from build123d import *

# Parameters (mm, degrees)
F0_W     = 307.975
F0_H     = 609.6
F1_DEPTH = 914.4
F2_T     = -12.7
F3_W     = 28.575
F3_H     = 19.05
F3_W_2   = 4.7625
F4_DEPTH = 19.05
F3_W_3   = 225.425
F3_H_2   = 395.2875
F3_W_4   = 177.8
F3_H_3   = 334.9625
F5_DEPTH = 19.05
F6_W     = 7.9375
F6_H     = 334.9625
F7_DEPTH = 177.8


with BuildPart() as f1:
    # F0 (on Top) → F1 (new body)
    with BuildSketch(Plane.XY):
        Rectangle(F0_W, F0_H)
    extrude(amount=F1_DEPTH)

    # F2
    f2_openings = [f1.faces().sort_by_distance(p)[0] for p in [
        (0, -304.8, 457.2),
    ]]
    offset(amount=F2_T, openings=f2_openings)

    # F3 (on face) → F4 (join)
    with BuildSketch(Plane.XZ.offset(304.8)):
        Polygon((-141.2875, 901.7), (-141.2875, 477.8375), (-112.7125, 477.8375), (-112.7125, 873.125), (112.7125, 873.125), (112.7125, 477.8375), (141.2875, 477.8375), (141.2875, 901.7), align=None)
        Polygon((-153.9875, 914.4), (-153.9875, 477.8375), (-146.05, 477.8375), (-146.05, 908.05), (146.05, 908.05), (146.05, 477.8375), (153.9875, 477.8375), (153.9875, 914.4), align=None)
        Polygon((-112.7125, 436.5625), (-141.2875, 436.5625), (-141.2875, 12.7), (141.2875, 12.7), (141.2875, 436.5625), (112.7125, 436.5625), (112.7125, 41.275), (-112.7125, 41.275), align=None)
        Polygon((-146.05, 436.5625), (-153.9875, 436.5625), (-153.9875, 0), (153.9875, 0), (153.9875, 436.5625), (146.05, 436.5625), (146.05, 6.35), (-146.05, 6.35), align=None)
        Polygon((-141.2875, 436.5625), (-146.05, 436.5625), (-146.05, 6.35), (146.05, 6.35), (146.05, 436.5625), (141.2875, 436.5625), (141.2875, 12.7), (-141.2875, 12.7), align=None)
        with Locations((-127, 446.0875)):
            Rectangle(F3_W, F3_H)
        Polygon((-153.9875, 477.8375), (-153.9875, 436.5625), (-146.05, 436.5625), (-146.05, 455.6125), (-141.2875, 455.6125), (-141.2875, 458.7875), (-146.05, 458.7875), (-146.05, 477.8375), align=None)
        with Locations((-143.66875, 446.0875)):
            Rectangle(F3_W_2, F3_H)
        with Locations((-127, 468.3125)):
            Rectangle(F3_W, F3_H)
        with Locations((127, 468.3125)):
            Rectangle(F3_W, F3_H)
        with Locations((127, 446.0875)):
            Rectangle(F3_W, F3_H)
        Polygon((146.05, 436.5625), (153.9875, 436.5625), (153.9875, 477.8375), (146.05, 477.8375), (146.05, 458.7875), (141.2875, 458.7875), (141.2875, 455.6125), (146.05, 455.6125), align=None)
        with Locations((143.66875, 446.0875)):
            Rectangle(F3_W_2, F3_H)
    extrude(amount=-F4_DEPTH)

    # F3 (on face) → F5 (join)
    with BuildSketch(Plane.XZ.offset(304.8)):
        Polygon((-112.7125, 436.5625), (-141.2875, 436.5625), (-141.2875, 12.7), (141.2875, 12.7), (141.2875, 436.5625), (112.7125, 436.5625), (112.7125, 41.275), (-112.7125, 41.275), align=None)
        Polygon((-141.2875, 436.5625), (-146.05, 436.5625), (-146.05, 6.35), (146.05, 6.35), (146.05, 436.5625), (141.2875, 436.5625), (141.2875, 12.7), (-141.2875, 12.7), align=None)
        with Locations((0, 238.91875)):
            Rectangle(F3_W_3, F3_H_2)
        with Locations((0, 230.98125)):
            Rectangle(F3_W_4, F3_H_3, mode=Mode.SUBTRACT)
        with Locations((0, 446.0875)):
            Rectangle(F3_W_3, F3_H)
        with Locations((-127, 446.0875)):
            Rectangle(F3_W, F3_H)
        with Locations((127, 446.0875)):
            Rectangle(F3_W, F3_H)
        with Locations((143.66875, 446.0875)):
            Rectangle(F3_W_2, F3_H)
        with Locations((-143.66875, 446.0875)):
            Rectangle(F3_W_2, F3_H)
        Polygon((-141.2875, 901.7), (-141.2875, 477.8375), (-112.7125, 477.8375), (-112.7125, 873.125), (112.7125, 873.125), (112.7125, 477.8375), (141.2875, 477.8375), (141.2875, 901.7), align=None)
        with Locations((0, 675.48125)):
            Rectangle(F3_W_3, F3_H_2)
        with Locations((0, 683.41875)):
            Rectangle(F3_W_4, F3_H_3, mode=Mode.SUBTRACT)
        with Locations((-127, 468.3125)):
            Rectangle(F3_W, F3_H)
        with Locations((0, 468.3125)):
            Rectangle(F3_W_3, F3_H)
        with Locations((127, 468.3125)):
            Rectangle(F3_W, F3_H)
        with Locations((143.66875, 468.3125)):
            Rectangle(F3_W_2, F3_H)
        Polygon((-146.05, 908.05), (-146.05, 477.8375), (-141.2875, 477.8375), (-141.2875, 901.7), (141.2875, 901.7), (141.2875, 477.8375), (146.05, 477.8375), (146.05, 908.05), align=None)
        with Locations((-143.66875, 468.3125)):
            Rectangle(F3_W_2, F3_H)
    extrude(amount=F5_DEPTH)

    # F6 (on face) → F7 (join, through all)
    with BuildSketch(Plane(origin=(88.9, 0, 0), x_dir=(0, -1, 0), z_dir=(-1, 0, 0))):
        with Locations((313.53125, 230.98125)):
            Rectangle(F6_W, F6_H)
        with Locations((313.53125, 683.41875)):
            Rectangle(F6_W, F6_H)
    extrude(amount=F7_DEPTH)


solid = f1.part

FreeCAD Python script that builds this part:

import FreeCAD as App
import Part
import Sketcher
from FreeCAD import Vector
Q = App.Units.Quantity


def faces_at(feature, points):
    """Names of the faces that lie closest to the given points."""
    faces = feature.Shape.Faces
    near = lambda p: min(range(len(faces)), key=lambda i: faces[i].distToShape(Part.Vertex(*p))[0])
    return sorted({f"Face{near(p) + 1}" for p in points})

doc = App.newDocument("Part")
body = doc.addObject("PartDesign::Body", "Body")

# Sketch on XY plane
sketch1 = body.newObject("Sketcher::SketchObject", "Sketch")
sketch1.AttachmentSupport = (doc.getObject("XY_Plane"), [""])
sketch1.MapMode = "FlatFace"
sketch1.addGeometry([
    Part.LineSegment(Vector(-154, 305, 0), Vector(-154, -305, 0)),
    Part.LineSegment(Vector(-154, -305, 0), Vector(154, -305, 0)),
    Part.LineSegment(Vector(154, -305, 0), Vector(154, 305, 0)),
    Part.LineSegment(Vector(154, 305, 0), Vector(-154, 305, 0)),
], False)
sketch1.addConstraint([
    Sketcher.Constraint("Coincident", 0, 2, 1, 1),
    Sketcher.Constraint("Coincident", 1, 2, 2, 1),
    Sketcher.Constraint("Coincident", 2, 2, 3, 1),
    Sketcher.Constraint("Coincident", 3, 2, 0, 1),
    Sketcher.Constraint("Vertical", 0),
    Sketcher.Constraint("Horizontal", 1),
    Sketcher.Constraint("Vertical", 2),
    Sketcher.Constraint("Horizontal", 3),
    Sketcher.Constraint("Symmetric", 0, 2, 2, 2, -1, 1),
    Sketcher.Constraint("DistanceY", 0, 2, 0, 1, Q("24 in")),
    Sketcher.Constraint("DistanceX", 1, 1, 1, 2, Q("12.125 in")),
])
pad1 = body.newObject("PartDesign::Pad", "Pad")
pad1.Profile = sketch1
pad1.Length = Q("36 in")
doc.recompute()

thickness = body.newObject("PartDesign::Thickness", "Thickness")
thickness.Base = (pad1, faces_at(pad1, [(0, -304.8, 457.2)]))
thickness.Value = Q("0.5 in")
thickness.Reversed = True
thickness.Join = "Arc"

# Sketch on XZ plane
sketch2 = body.newObject("Sketcher::SketchObject", "Sketch001")
sketch2.AttachmentSupport = (doc.getObject("XZ_Plane"), [""])
sketch2.MapMode = "FlatFace"
sketch2.AttachmentOffset = App.Placement(Vector(0, 0, 12 * 25.4), App.Rotation())
sketch2.addGeometry([
    Part.LineSegment(Vector(-141.3, 901.7, 0), Vector(-141.3, 458.8, 0)),  # 0
    Part.LineSegment(Vector(-141.3, 458.8, 0), Vector(-112.7, 458.8, 0)),  # 1
    Part.LineSegment(Vector(-112.7, 458.8, 0), Vector(-112.7, 873.1, 0)),  # 2
    Part.LineSegment(Vector(-112.7, 873.1, 0), Vector(112.7, 873.1, 0)),  # 3
    Part.LineSegment(Vector(112.7, 873.1, 0), Vector(112.7, 458.8, 0)),  # 4
    Part.LineSegment(Vector(112.7, 458.8, 0), Vector(141.3, 458.8, 0)),  # 5
    Part.LineSegment(Vector(141.3, 458.8, 0), Vector(141.3, 901.7, 0)),  # 6
    Part.LineSegment(Vector(141.3, 901.7, 0), Vector(-141.3, 901.7, 0)),  # 7
    Part.LineSegment(Vector(154, 914.4, 0), Vector(-154, 914.4, 0)),  # 8
    Part.LineSegment(Vector(-154, 914.4, 0), Vector(-154, 0, 0)),  # 9
    Part.LineSegment(Vector(-154, 0, 0), Vector(154, 0, 0)),  # 10
    Part.LineSegment(Vector(154, 0, 0), Vector(154, 914.4, 0)),  # 11
    Part.LineSegment(Vector(141.3, 458.8, 0), Vector(141.3, 455.6, 0)),  # 12
    Part.LineSegment(Vector(141.3, 455.6, 0), Vector(112.7, 455.6, 0)),  # 13
    Part.LineSegment(Vector(112.7, 455.6, 0), Vector(112.7, 41.3, 0)),  # 14
    Part.LineSegment(Vector(112.7, 41.3, 0), Vector(-112.7, 41.3, 0)),  # 15
    Part.LineSegment(Vector(-112.7, 41.3, 0), Vector(-112.7, 455.6, 0)),  # 16
    Part.LineSegment(Vector(-112.7, 455.6, 0), Vector(-141.3, 455.6, 0)),  # 17
    Part.LineSegment(Vector(-141.3, 455.6, 0), Vector(-141.3, 458.8, 0)),  # 18
    Part.LineSegment(Vector(-141.3, 458.8, 0), Vector(-146.1, 458.8, 0)),  # 19
    Part.LineSegment(Vector(-146.1, 458.8, 0), Vector(-146.1, 908, 0)),  # 20
    Part.LineSegment(Vector(-146.1, 908, 0), Vector(146.1, 908, 0)),  # 21
    Part.LineSegment(Vector(146.1, 908, 0), Vector(146.1, 458.8, 0)),  # 22
    Part.LineSegment(Vector(146.1, 458.8, 0), Vector(141.3, 458.8, 0)),  # 23
], False)
sketch2.addConstraint([
    Sketcher.Constraint("Coincident", 0, 2, 1, 1),
    Sketcher.Constraint("Coincident", 1, 2, 2, 1),
    Sketcher.Constraint("Coincident", 2, 2, 3, 1),
    Sketcher.Constraint("Coincident", 3, 2, 4, 1),
    Sketcher.Constraint("Coincident", 4, 2, 5, 1),
    Sketcher.Constraint("Coincident", 5, 2, 6, 1),
    Sketcher.Constraint("Coincident", 6, 2, 7, 1),
    Sketcher.Constraint("Coincident", 7, 2, 0, 1),
    Sketcher.Constraint("Coincident", 8, 2, 9, 1),
    Sketcher.Constraint("Coincident", 9, 2, 10, 1),
    Sketcher.Constraint("Coincident", 10, 2, 11, 1),
    Sketcher.Constraint("Coincident", 11, 2, 8, 1),
    Sketcher.Constraint("Coincident", 12, 2, 13, 1),
    Sketcher.Constraint("Coincident", 13, 2, 14, 1),
    Sketcher.Constraint("Coincident", 14, 2, 15, 1),
    Sketcher.Constraint("Coincident", 15, 2, 16, 1),
    Sketcher.Constraint("Coincident", 16, 2, 17, 1),
    Sketcher.Constraint("Coincident", 17, 2, 18, 1),
    Sketcher.Constraint("Coincident", 18, 2, 19, 1),
    Sketcher.Constraint("Coincident", 19, 2, 20, 1),
    Sketcher.Constraint("Coincident", 20, 2, 21, 1),
    Sketcher.Constraint("Coincident", 21, 2, 22, 1),
    Sketcher.Constraint("Coincident", 22, 2, 23, 1),
    Sketcher.Constraint("Coincident", 23, 2, 12, 1),
    Sketcher.Constraint("Vertical", 0),
    Sketcher.Constraint("Horizontal", 1),
    Sketcher.Constraint("Vertical", 2),
    Sketcher.Constraint("Horizontal", 3),
    Sketcher.Constraint("Vertical", 4),
    Sketcher.Constraint("Horizontal", 5),
    Sketcher.Constraint("Vertical", 6),
    Sketcher.Constraint("Horizontal", 7),
    Sketcher.Constraint("Horizontal", 8),
    Sketcher.Constraint("Vertical", 9),
    Sketcher.Constraint("Horizontal", 10),
    Sketcher.Constraint("Vertical", 11),
    Sketcher.Constraint("Vertical", 12),
    Sketcher.Constraint("Horizontal", 13),
    Sketcher.Constraint("Vertical", 14),
    Sketcher.Constraint("Horizontal", 15),
    Sketcher.Constraint("Vertical", 16),
    Sketcher.Constraint("Horizontal", 17),
    Sketcher.Constraint("Vertical", 18),
    Sketcher.Constraint("Horizontal", 19),
    Sketcher.Constraint("Vertical", 20),
    Sketcher.Constraint("Horizontal", 21),
    Sketcher.Constraint("Vertical", 22),
    Sketcher.Constraint("Horizontal", 23),
    Sketcher.Constraint("Coincident", 18, 2, 0, 2),
    Sketcher.Constraint("Coincident", 23, 2, 5, 2),
    Sketcher.Constraint("Symmetric", 9, 2, 10, 2, -1, 1),
    Sketcher.Constraint("Symmetric", 1, 2, 4, 2, -2),
    Sketcher.Constraint("Symmetric", 13, 2, 16, 2, -2),
    Sketcher.Constraint("Vertical", 4, 2, 13, 2),
    Sketcher.Constraint("Equal", 1, 5),
    Sketcher.Constraint("Equal", 19, 23),
    Sketcher.Constraint("Equal", 4, 14),
    Sketcher.Constraint("DistanceY", 9, 2, 9, 1, Q("36 in")),
    Sketcher.Constraint("DistanceX", 21, 1, 21, 2, Q("11.5 in")),
    Sketcher.Constraint("DistanceX", 0, 2, 3, 2, Q("10 in")),
    Sketcher.Constraint("DistanceY", -1, 1, 6, 2, Q("35.5 in")),
    Sketcher.Constraint("DistanceX", 8, 2, 7, 2, Q("0.5 in")),
    Sketcher.Constraint("DistanceX", 1, 1, 1, 2, Q("1.125 in")),
    Sketcher.Constraint("DistanceY", 0, 2, 0, 1, Q("17.4375 in")),
    Sketcher.Constraint("DistanceY", 2, 1, 2, 2, Q("16.3125 in")),
    Sketcher.Constraint("DistanceY", 12, 2, 12, 1, Q("0.125 in")),
    Sketcher.Constraint("DistanceY", 20, 1, 20, 2, Q("17.6875 in")),
])
pad2 = body.newObject("PartDesign::Pad", "Pad001")
pad2.Profile = sketch2
pad2.Length = Q("0.75 in")
pad2.Reversed = True

# Sketch on XZ plane
sketch3 = body.newObject("Sketcher::SketchObject", "Sketch002")
sketch3.AttachmentSupport = (doc.getObject("XZ_Plane"), [""])
sketch3.MapMode = "FlatFace"
sketch3.AttachmentOffset = App.Placement(Vector(0, 0, 12 * 25.4), App.Rotation())
sketch3.addGeometry([
    Part.LineSegment(Vector(-146, 6, 0), Vector(146, 6, 0)),  # 0
    Part.LineSegment(Vector(146, 6, 0), Vector(146, 456, 0)),  # 1
    Part.LineSegment(Vector(146, 456, 0), Vector(-146, 456, 0)),  # 2
    Part.LineSegment(Vector(-146, 456, 0), Vector(-146, 6, 0)),  # 3
    Part.LineSegment(Vector(89, 64, 0), Vector(-89, 64, 0)),  # 4
    Part.LineSegment(Vector(-89, 64, 0), Vector(-89, 398, 0)),  # 5
    Part.LineSegment(Vector(-89, 398, 0), Vector(89, 398, 0)),  # 6
    Part.LineSegment(Vector(89, 398, 0), Vector(89, 64, 0)),  # 7
    Part.LineSegment(Vector(146, 459, 0), Vector(146, 908, 0)),  # 8
    Part.LineSegment(Vector(146, 908, 0), Vector(-146, 908, 0)),  # 9
    Part.LineSegment(Vector(-146, 908, 0), Vector(-146, 459, 0)),  # 10
    Part.LineSegment(Vector(-146, 459, 0), Vector(146, 459, 0)),  # 11
    Part.LineSegment(Vector(89, 516, 0), Vector(-89, 516, 0)),  # 12
    Part.LineSegment(Vector(-89, 516, 0), Vector(-89, 851, 0)),  # 13
    Part.LineSegment(Vector(-89, 851, 0), Vector(89, 851, 0)),  # 14
    Part.LineSegment(Vector(89, 851, 0), Vector(89, 516, 0)),  # 15
], False)
sketch3.addConstraint([
    Sketcher.Constraint("Coincident", 0, 2, 1, 1),
    Sketcher.Constraint("Coincident", 1, 2, 2, 1),
    Sketcher.Constraint("Coincident", 2, 2, 3, 1),
    Sketcher.Constraint("Coincident", 3, 2, 0, 1),
    Sketcher.Constraint("Coincident", 4, 2, 5, 1),
    Sketcher.Constraint("Coincident", 5, 2, 6, 1),
    Sketcher.Constraint("Coincident", 6, 2, 7, 1),
    Sketcher.Constraint("Coincident", 7, 2, 4, 1),
    Sketcher.Constraint("Coincident", 8, 2, 9, 1),
    Sketcher.Constraint("Coincident", 9, 2, 10, 1),
    Sketcher.Constraint("Coincident", 10, 2, 11, 1),
    Sketcher.Constraint("Coincident", 11, 2, 8, 1),
    Sketcher.Constraint("Coincident", 12, 2, 13, 1),
    Sketcher.Constraint("Coincident", 13, 2, 14, 1),
    Sketcher.Constraint("Coincident", 14, 2, 15, 1),
    Sketcher.Constraint("Coincident", 15, 2, 12, 1),
    Sketcher.Constraint("Horizontal", 0),
    Sketcher.Constraint("Vertical", 1),
    Sketcher.Constraint("Horizontal", 2),
    Sketcher.Constraint("Vertical", 3),
    Sketcher.Constraint("Horizontal", 4),
    Sketcher.Constraint("Vertical", 5),
    Sketcher.Constraint("Horizontal", 6),
    Sketcher.Constraint("Vertical", 7),
    Sketcher.Constraint("Vertical", 8),
    Sketcher.Constraint("Horizontal", 9),
    Sketcher.Constraint("Vertical", 10),
    Sketcher.Constraint("Horizontal", 11),
    Sketcher.Constraint("Horizontal", 12),
    Sketcher.Constraint("Vertical", 13),
    Sketcher.Constraint("Horizontal", 14),
    Sketcher.Constraint("Vertical", 15),
    Sketcher.Constraint("Vertical", 1, 2, 8, 2),
    Sketcher.Constraint("Vertical", 3, 2, 9, 2),
    Sketcher.Constraint("Vertical", 5, 2, 12, 2),
    Sketcher.Constraint("Vertical", 7, 2, 14, 2),
    Sketcher.Constraint("Equal", 3, 8),
    Sketcher.Constraint("Equal", 7, 13),
    Sketcher.Constraint("DistanceX", 4, 2, 4, 1, Q("7 in")),
    Sketcher.Constraint("DistanceX", 0, 1, 0, 2, Q("11.5 in")),
    Sketcher.Constraint("DistanceX", 4, 2, -1, 1, Q("3.5 in")),
    Sketcher.Constraint("DistanceY", -1, 1, 4, 2, Q("2.5 in")),
    Sketcher.Constraint("DistanceY", -1, 1, 13, 2, Q("33.5 in")),
    Sketcher.Constraint("DistanceY", 1, 1, 1, 2, Q("17.6875 in")),
    Sketcher.Constraint("DistanceY", 5, 1, 5, 2, Q("13.1875 in")),
    Sketcher.Constraint("DistanceX", -1, 1, 0, 2, Q("5.75 in")),
    Sketcher.Constraint("DistanceY", -1, 1, 0, 2, Q("0.25 in")),
    Sketcher.Constraint("DistanceY", -1, 1, 8, 2, Q("35.75 in")),
])
pad3 = body.newObject("PartDesign::Pad", "Pad002")
pad3.Profile = sketch3
pad3.Length = Q("0.75 in")

# Sketch on YZ plane
sketch4 = body.newObject("Sketcher::SketchObject", "Sketch003")
sketch4.AttachmentSupport = (doc.getObject("YZ_Plane"), [""])
sketch4.MapMode = "FlatFace"
sketch4.AttachmentOffset = App.Placement(Vector(0, 0, 3.5 * 25.4), App.Rotation())
sketch4.addGeometry([
    Part.LineSegment(Vector(-310, 398, 0), Vector(-310, 64, 0)),  # 0
    Part.LineSegment(Vector(-310, 64, 0), Vector(-318, 64, 0)),  # 1
    Part.LineSegment(Vector(-318, 64, 0), Vector(-318, 398, 0)),  # 2
    Part.LineSegment(Vector(-318, 398, 0), Vector(-310, 398, 0)),  # 3
    Part.LineSegment(Vector(-310, 851, 0), Vector(-310, 516, 0)),  # 4
    Part.LineSegment(Vector(-310, 516, 0), Vector(-318, 516, 0)),  # 5
    Part.LineSegment(Vector(-318, 516, 0), Vector(-318, 851, 0)),  # 6
    Part.LineSegment(Vector(-318, 851, 0), Vector(-310, 851, 0)),  # 7
], False)
sketch4.addConstraint([
    Sketcher.Constraint("Coincident", 0, 2, 1, 1),
    Sketcher.Constraint("Coincident", 1, 2, 2, 1),
    Sketcher.Constraint("Coincident", 2, 2, 3, 1),
    Sketcher.Constraint("Coincident", 3, 2, 0, 1),
    Sketcher.Constraint("Coincident", 4, 2, 5, 1),
    Sketcher.Constraint("Coincident", 5, 2, 6, 1),
    Sketcher.Constraint("Coincident", 6, 2, 7, 1),
    Sketcher.Constraint("Coincident", 7, 2, 4, 1),
    Sketcher.Constraint("Vertical", 0),
    Sketcher.Constraint("Horizontal", 1),
    Sketcher.Constraint("Vertical", 2),
    Sketcher.Constraint("Horizontal", 3),
    Sketcher.Constraint("Vertical", 4),
    Sketcher.Constraint("Horizontal", 5),
    Sketcher.Constraint("Vertical", 6),
    Sketcher.Constraint("Horizontal", 7),
    Sketcher.Constraint("Vertical", 3, 2, 4, 2),
    Sketcher.Constraint("Vertical", 2, 2, 5, 2),
    Sketcher.Constraint("Equal", 2, 4),
    Sketcher.Constraint("DistanceY", 1, 2, 6, 2, Q("31 in")),
    Sketcher.Constraint("DistanceY", -1, 1, 0, 2, Q("2.5 in")),
    Sketcher.Constraint("DistanceX", 1, 2, -1, 1, Q("12.5 in")),
    Sketcher.Constraint("DistanceX", 1, 2, 1, 1, Q("0.3125 in")),
    Sketcher.Constraint("DistanceY", 0, 2, 0, 1, Q("13.1875 in")),
])
pad4 = body.newObject("PartDesign::Pad", "Pad003")
pad4.Profile = sketch4
pad4.Length = Q("7 in")
pad4.Reversed = True

doc.recompute()
